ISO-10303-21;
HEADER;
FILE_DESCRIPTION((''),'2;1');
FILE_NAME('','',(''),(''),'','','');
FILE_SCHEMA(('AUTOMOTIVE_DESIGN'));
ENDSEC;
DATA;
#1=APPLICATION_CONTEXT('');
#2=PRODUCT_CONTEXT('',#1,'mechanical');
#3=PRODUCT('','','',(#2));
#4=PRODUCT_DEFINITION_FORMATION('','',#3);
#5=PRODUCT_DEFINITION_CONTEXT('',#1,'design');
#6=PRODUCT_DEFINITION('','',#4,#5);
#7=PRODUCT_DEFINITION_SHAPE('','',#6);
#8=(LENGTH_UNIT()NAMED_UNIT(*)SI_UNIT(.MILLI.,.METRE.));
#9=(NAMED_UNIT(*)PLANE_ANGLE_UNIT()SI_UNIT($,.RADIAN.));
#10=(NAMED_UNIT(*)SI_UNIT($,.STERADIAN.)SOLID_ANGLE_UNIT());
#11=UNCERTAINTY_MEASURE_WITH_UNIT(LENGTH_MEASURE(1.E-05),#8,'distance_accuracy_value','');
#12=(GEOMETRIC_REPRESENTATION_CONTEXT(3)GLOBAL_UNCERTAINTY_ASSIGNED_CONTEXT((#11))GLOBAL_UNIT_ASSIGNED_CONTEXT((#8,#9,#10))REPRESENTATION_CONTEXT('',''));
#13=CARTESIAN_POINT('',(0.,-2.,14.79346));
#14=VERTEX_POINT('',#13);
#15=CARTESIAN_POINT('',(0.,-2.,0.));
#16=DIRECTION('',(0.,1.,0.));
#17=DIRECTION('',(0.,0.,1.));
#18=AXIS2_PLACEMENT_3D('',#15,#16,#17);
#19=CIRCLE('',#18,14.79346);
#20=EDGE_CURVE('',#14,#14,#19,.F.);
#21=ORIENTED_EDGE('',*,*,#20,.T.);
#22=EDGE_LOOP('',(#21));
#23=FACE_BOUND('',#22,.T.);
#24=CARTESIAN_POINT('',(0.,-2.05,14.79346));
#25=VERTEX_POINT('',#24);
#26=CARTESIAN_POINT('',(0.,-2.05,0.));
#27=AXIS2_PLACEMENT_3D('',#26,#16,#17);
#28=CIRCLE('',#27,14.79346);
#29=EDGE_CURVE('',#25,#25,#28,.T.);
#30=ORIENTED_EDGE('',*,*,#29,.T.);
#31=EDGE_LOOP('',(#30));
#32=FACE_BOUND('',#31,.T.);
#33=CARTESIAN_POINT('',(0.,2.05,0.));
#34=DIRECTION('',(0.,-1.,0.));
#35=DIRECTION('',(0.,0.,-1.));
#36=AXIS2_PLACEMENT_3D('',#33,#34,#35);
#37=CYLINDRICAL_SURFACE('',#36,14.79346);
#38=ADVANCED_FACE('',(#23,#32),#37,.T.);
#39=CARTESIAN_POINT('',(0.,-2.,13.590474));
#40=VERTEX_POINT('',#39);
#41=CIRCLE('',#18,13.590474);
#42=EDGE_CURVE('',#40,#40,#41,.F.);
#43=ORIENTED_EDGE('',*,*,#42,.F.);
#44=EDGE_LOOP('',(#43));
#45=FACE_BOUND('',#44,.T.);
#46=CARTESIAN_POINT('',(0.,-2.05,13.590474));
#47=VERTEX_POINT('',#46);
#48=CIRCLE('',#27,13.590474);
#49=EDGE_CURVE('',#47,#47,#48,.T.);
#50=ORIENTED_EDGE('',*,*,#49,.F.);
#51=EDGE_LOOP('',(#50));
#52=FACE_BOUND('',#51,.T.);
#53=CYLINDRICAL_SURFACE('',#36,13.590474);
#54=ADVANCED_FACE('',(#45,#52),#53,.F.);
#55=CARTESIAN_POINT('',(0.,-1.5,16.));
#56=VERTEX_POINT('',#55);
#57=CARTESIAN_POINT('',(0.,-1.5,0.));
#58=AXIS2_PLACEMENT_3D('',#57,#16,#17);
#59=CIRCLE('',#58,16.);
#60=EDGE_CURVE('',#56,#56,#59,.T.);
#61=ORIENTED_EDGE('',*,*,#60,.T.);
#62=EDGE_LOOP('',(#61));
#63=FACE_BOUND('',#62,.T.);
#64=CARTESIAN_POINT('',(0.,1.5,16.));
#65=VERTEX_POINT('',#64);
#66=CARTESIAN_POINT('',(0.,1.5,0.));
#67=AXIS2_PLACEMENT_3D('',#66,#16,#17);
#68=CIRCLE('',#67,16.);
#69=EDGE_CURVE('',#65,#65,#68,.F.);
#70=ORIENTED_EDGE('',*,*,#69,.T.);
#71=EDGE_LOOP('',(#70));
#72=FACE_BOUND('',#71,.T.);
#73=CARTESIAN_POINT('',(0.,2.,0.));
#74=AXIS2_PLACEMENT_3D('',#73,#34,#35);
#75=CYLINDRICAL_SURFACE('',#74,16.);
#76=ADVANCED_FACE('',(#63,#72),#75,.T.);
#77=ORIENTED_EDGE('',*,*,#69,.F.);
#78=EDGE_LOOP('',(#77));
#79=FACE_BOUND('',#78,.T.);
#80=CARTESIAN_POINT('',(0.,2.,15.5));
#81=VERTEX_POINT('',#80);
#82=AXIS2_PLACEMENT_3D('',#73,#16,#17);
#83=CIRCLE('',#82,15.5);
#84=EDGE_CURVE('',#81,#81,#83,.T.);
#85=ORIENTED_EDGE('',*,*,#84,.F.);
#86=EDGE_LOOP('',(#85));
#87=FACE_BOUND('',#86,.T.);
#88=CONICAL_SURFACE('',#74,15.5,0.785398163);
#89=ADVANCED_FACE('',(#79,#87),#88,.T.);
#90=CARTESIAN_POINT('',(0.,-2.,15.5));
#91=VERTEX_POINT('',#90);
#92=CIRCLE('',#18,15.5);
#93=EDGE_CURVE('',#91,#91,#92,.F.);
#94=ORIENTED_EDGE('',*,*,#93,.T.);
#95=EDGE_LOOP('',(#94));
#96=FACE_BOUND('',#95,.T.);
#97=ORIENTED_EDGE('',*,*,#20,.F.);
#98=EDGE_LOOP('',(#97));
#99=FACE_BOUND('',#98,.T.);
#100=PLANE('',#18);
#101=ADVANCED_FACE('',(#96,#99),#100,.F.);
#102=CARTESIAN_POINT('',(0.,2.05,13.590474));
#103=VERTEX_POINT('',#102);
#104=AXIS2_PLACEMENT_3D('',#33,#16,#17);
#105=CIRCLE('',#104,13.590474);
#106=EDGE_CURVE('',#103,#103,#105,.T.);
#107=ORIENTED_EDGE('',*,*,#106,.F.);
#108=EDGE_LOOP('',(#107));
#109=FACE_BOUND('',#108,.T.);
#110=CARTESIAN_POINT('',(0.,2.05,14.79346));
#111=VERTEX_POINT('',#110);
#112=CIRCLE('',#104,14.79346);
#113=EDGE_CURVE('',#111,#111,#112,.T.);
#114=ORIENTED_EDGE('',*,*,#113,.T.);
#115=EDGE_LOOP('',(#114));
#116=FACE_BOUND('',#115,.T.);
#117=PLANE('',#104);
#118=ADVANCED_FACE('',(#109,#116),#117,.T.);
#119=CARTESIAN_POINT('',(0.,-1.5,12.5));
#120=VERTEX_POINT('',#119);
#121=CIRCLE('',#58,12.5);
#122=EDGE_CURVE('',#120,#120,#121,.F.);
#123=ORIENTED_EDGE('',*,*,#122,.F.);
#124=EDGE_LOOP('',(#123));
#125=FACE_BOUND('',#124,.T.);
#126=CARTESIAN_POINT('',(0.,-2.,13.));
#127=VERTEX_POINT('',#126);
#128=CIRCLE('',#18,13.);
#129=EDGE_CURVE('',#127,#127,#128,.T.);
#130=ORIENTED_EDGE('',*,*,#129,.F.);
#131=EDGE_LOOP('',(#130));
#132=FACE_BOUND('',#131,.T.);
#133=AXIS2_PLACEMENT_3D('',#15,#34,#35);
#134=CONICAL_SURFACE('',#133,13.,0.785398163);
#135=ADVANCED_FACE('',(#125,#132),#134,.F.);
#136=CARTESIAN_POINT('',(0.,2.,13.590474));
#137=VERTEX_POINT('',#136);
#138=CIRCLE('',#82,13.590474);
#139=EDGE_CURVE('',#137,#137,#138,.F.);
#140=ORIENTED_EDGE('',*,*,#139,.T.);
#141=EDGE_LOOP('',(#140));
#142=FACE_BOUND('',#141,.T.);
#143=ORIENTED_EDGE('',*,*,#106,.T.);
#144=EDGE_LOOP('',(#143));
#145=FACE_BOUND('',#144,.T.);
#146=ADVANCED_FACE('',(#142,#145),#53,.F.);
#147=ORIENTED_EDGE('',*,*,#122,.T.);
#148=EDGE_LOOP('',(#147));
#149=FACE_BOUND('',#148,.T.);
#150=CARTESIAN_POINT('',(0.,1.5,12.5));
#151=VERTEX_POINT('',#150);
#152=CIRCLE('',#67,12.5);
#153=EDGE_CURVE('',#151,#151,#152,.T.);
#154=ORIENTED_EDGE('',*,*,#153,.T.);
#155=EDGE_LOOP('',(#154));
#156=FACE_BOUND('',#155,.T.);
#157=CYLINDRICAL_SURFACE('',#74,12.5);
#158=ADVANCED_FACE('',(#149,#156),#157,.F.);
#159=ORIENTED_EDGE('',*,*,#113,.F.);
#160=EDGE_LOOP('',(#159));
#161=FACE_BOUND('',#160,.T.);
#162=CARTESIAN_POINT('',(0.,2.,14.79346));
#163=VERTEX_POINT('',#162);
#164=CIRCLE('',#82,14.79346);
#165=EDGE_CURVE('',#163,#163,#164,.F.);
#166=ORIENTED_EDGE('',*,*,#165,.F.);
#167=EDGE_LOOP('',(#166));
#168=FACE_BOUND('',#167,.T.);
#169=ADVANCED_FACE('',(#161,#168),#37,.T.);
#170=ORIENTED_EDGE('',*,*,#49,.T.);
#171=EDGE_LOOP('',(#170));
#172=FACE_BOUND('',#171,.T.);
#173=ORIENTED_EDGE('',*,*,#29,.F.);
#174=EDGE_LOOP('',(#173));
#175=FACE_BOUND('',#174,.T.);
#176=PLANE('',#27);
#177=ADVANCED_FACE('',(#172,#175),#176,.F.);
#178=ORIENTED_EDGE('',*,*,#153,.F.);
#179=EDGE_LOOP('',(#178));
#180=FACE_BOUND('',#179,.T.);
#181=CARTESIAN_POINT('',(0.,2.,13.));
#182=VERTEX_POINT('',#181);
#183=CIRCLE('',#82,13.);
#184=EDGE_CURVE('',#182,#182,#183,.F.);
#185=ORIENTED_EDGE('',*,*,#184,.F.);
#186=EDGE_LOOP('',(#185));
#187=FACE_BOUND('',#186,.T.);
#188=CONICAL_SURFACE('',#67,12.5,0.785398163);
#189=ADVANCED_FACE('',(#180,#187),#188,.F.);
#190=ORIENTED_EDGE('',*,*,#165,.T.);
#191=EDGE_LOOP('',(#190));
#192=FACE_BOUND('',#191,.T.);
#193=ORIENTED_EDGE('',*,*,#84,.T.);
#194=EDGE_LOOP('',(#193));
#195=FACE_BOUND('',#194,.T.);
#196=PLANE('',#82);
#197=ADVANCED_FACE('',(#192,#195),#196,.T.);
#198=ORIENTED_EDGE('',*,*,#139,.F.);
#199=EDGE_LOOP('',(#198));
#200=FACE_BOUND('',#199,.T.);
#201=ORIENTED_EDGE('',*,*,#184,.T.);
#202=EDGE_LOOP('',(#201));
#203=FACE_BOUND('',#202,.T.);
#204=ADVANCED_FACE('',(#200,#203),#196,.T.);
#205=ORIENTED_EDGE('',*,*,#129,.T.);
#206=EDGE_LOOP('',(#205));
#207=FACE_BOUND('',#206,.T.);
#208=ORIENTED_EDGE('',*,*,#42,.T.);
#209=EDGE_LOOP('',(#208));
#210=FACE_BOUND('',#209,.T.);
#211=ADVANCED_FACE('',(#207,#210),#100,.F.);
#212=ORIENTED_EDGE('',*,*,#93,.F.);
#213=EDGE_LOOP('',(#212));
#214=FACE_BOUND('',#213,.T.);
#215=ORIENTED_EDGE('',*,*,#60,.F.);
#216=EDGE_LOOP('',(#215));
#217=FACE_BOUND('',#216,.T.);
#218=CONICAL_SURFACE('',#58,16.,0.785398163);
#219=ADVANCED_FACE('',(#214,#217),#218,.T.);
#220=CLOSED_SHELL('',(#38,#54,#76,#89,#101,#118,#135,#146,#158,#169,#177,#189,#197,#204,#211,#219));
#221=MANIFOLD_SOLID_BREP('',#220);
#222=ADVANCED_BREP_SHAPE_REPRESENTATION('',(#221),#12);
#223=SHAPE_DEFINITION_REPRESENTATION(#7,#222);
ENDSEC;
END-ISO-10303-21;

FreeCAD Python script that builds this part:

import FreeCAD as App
import Part
import Sketcher
from FreeCAD import Vector
Q = App.Units.Quantity


def edges_at(feature, points):
    """Names of the edges that pass closest to the given points."""
    edges = feature.Shape.Edges
    near = lambda p: min(range(len(edges)), key=lambda i: edges[i].distToShape(Part.Vertex(*p))[0])
    return sorted({f"Edge{near(p) + 1}" for p in points})

doc = App.newDocument("Part")
body = doc.addObject("PartDesign::Body", "Body")

# Sketch on XZ plane
sketch1 = body.newObject("Sketcher::SketchObject", "Sketch")
sketch1.AttachmentSupport = (doc.getObject("XZ_Plane"), [""])
sketch1.MapMode = "FlatFace"
sketch1.addGeometry([
    Part.Circle(Vector(0, 0, 0), Vector(0, 0, 1), 16),
    Part.Circle(Vector(0, 0, 0), Vector(0, 0, 1), 12),
], False)
sketch1.addConstraint([
    Sketcher.Constraint("Coincident", 0, 3, -1, 1),
    Sketcher.Constraint("Coincident", 1, 3, -1, 1),
    Sketcher.Constraint("Diameter", 0, Q("32 mm")),
    Sketcher.Constraint("Diameter", 1, Q("25 mm")),
])
pad1 = body.newObject("PartDesign::Pad", "Pad")
pad1.Profile = sketch1
pad1.Length = 4
pad1.Midplane = True
doc.recompute()

chamfer = body.newObject("PartDesign::Chamfer", "Chamfer")
chamfer.Base = (pad1, edges_at(pad1, [
    (-16, -2, 0),
    (-16, 2, 0),
    (-12.5, -2, 0),
    (-12.5, 2, 0),
]))
chamfer.Size = 0.5

# Sketch on XZ plane
sketch2 = body.newObject("Sketcher::SketchObject", "Sketch001")
sketch2.AttachmentSupport = (doc.getObject("XZ_Plane"), [""])
sketch2.MapMode = "FlatFace"
sketch2.addGeometry([
    Part.Circle(Vector(0, 0, 0), Vector(0, 0, 1), 15),
    Part.Circle(Vector(0, 0, 0), Vector(0, 0, 1), 14),
], False)
sketch2.addConstraint([
    Sketcher.Constraint("Coincident", 0, 3, -1, 1),
    Sketcher.Constraint("Coincident", 1, 3, -1, 1),
    Sketcher.Constraint("Diameter", 0, Q("29.586921 mm")),
    Sketcher.Constraint("Diameter", 1, Q("27.180948 mm")),
])
pad2 = body.newObject("PartDesign::Pad", "Pad001")
pad2.Profile = sketch2
pad2.Length = 4.1
pad2.Midplane = True

doc.recompute()
